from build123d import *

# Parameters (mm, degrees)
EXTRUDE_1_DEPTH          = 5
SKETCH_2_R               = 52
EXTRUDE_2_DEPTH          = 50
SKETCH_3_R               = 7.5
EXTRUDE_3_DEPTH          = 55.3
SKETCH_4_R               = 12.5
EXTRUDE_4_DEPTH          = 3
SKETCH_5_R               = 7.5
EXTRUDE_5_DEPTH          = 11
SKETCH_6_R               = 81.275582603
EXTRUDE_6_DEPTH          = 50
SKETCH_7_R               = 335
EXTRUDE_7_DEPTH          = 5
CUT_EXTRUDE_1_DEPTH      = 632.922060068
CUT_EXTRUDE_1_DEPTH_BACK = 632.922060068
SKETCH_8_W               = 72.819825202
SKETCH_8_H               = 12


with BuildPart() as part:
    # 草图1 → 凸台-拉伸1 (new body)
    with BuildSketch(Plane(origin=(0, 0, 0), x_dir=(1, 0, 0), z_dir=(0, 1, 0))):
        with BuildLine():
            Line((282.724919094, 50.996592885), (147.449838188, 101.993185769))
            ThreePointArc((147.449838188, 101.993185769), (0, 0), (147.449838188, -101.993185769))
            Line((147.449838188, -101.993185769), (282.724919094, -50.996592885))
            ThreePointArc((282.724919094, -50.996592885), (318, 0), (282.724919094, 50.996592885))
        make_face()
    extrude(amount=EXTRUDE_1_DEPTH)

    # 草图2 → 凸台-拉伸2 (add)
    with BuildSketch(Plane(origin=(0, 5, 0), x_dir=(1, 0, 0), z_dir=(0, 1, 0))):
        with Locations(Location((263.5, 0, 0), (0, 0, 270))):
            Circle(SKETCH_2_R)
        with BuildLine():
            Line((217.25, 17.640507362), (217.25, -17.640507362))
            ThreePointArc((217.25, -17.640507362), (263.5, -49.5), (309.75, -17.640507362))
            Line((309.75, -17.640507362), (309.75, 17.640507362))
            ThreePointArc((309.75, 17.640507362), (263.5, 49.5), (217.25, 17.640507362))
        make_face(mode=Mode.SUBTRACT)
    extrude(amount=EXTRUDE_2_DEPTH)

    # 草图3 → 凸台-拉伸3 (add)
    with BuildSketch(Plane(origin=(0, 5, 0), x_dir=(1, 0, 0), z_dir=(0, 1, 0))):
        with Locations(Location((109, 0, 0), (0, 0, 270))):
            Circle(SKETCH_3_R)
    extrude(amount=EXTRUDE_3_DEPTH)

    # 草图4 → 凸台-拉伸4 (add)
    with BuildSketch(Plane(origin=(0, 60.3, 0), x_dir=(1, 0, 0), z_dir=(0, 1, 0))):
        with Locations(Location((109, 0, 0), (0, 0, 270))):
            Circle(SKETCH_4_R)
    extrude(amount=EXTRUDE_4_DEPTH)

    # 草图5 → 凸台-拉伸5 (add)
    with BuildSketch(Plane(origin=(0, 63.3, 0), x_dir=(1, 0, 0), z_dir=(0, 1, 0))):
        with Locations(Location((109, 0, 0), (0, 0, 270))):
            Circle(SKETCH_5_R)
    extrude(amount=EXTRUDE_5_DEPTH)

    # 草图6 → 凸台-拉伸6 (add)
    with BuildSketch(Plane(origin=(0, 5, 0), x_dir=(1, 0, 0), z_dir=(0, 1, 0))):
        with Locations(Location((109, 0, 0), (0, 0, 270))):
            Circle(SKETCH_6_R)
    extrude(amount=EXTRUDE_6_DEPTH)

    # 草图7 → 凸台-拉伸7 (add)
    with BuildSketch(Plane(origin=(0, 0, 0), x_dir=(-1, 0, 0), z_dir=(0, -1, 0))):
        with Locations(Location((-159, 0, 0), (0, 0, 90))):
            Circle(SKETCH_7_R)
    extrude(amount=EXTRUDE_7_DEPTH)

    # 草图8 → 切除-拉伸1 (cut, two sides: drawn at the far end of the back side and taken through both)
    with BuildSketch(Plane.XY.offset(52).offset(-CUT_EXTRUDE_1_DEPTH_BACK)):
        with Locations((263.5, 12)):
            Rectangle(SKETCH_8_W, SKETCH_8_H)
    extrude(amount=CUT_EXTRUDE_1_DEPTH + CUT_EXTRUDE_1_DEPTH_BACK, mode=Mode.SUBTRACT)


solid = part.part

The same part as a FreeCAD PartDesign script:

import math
import FreeCAD as App
import Part
import Sketcher
from FreeCAD import Vector

doc = App.newDocument("Part")
body = doc.addObject("PartDesign::Body", "Body")

# Sketch on XZ plane
sketch1 = body.newObject("Sketcher::SketchObject", "Sketch")
sketch1.AttachmentSupport = (doc.getObject("XZ_Plane"), [""])
sketch1.MapMode = "FlatFace"
sketch1.addGeometry([
    Part.LineSegment(Vector(283, -51, 0), Vector(147, -102, 0)),
    Part.ArcOfCircle(Part.Circle(Vector(109, 0, 0), Vector(0, 0, 1), 109), math.radians(69), math.radians(291)),
    Part.LineSegment(Vector(147, 102, 0), Vector(283, 51, 0)),
    Part.ArcOfCircle(Part.Circle(Vector(263, 0, 0), Vector(0, 0, 1), 55), math.radians(-69), math.radians(69)),
], False)
sketch1.addConstraint([
    Sketcher.Constraint("Tangent", 0, 2, 1, 2),
    Sketcher.Constraint("Tangent", 1, 1, 2, 1),
    Sketcher.Constraint("Tangent", 2, 2, 3, 2),
    Sketcher.Constraint("Tangent", 3, 1, 0, 1),
    Sketcher.Constraint("Symmetric", 0, 2, 1, 1, -1),
    Sketcher.Constraint("Radius", 1, 109.0),
    Sketcher.Constraint("Radius", 3, 54.5),
    Sketcher.Constraint("DistanceX", -1, 1, 1, 3, 109.0),
    Sketcher.Constraint("DistanceX", -1, 1, 3, 3, 263.5),
])
pad1 = body.newObject("PartDesign::Pad", "Pad")
pad1.Profile = sketch1
pad1.Length = 5
pad1.Reversed = True

# Sketch on XZ plane
sketch2 = body.newObject("Sketcher::SketchObject", "Sketch001")
sketch2.AttachmentSupport = (doc.getObject("XZ_Plane"), [""])
sketch2.MapMode = "FlatFace"
sketch2.AttachmentOffset = App.Placement(Vector(0, 0, -5), App.Rotation())
sketch2.addGeometry([
    Part.Circle(Vector(264, 0, 0), Vector(0, 0, 1), 52),  # 0
    Part.LineSegment(Vector(217, 18, 0), Vector(217, -18, 0)),  # 1
    Part.ArcOfCircle(Part.Circle(Vector(264, 0, 0), Vector(0, 0, 1), 50), math.radians(-159), math.radians(-21)),  # 2
    Part.LineSegment(Vector(310, -18, 0), Vector(310, 18, 0)),  # 3
    Part.ArcOfCircle(Part.Circle(Vector(264, 0, 0), Vector(0, 0, 1), 50), math.radians(21), math.radians(159)),  # 4
], False)
sketch2.addConstraint([
    Sketcher.Constraint("Coincident", 1, 2, 2, 1),
    Sketcher.Constraint("Coincident", 2, 2, 3, 1),
    Sketcher.Constraint("Coincident", 3, 2, 4, 1),
    Sketcher.Constraint("Coincident", 4, 2, 1, 1),
    Sketcher.Constraint("Vertical", 1),
    Sketcher.Constraint("Vertical", 3),
    Sketcher.Constraint("Coincident", 2, 3, 0, 3),
    Sketcher.Constraint("Coincident", 4, 3, 0, 3),
    Sketcher.Constraint("Equal", 2, 4),
    Sketcher.Constraint("PointOnObject", 0, 3, -1),
    Sketcher.Constraint("Horizontal", 1, 2, 2, 2),
    Sketcher.Constraint("Diameter", 0, 104.0),
    Sketcher.Constraint("Radius", 2, 49.5),
    Sketcher.Constraint("DistanceX", -1, 1, 0, 3, 263.5),
    Sketcher.Constraint("DistanceX", 1, 2, 2, 2, 92.5),
])
pad2 = body.newObject("PartDesign::Pad", "Pad001")
pad2.Profile = sketch2
pad2.Length = 50
pad2.Reversed = True

# Sketch on XZ plane
sketch3 = body.newObject("Sketcher::SketchObject", "Sketch002")
sketch3.AttachmentSupport = (doc.getObject("XZ_Plane"), [""])
sketch3.MapMode = "FlatFace"
sketch3.AttachmentOffset = App.Placement(Vector(0, 0, -5), App.Rotation())
sketch3.addGeometry(Part.Circle(Vector(109, 0, 0), Vector(0, 0, 1), 8), False)
sketch3.addConstraint([
    Sketcher.Constraint("PointOnObject", 0, 3, -1),
    Sketcher.Constraint("Diameter", 0, 15.0),
    Sketcher.Constraint("DistanceX", -1, 1, 0, 3, 109.0),
])
pad3 = body.newObject("PartDesign::Pad", "Pad002")
pad3.Profile = sketch3
pad3.Length = 55.3
pad3.Reversed = True

# Sketch on XZ plane
sketch4 = body.newObject("Sketcher::SketchObject", "Sketch003")
sketch4.AttachmentSupport = (doc.getObject("XZ_Plane"), [""])
sketch4.MapMode = "FlatFace"
sketch4.AttachmentOffset = App.Placement(Vector(0, 0, -60.3), App.Rotation())
sketch4.addGeometry(Part.Circle(Vector(109, 0, 0), Vector(0, 0, 1), 12), False)
sketch4.addConstraint([
    Sketcher.Constraint("PointOnObject", 0, 3, -1),
    Sketcher.Constraint("Diameter", 0, 25.0),
    Sketcher.Constraint("DistanceX", -1, 1, 0, 3, 109.0),
])
pad4 = body.newObject("PartDesign::Pad", "Pad003")
pad4.Profile = sketch4
pad4.Length = 3
pad4.Reversed = True

# Sketch on XZ plane
sketch5 = body.newObject("Sketcher::SketchObject", "Sketch004")
sketch5.AttachmentSupport = (doc.getObject("XZ_Plane"), [""])
sketch5.MapMode = "FlatFace"
sketch5.AttachmentOffset = App.Placement(Vector(0, 0, -63.3), App.Rotation())
sketch5.addGeometry(Part.Circle(Vector(109, 0, 0), Vector(0, 0, 1), 8), False)
sketch5.addConstraint([
    Sketcher.Constraint("PointOnObject", 0, 3, -1),
    Sketcher.Constraint("Diameter", 0, 15.0),
    Sketcher.Constraint("DistanceX", -1, 1, 0, 3, 109.0),
])
pad5 = body.newObject("PartDesign::Pad", "Pad004")
pad5.Profile = sketch5
pad5.Length = 11
pad5.Reversed = True

# Sketch on XZ plane
sketch6 = body.newObject("Sketcher::SketchObject", "Sketch005")
sketch6.AttachmentSupport = (doc.getObject("XZ_Plane"), [""])
sketch6.MapMode = "FlatFace"
sketch6.AttachmentOffset = App.Placement(Vector(0, 0, -5), App.Rotation())
sketch6.addGeometry(Part.Circle(Vector(109, 0, 0), Vector(0, 0, 1), 81), False)
sketch6.addConstraint([
    Sketcher.Constraint("PointOnObject", 0, 3, -1),
    Sketcher.Constraint("DistanceX", -1, 1, 0, 3, 109.0),
    Sketcher.Constraint("Diameter", 0, 162.551165),
])
pad6 = body.newObject("PartDesign::Pad", "Pad005")
pad6.Profile = sketch6
pad6.Length = 50
pad6.Reversed = True

# Sketch on XZ plane
sketch7 = body.newObject("Sketcher::SketchObject", "Sketch006")
sketch7.AttachmentSupport = (doc.getObject("XZ_Plane"), [""])
sketch7.MapMode = "FlatFace"
sketch7.addGeometry(Part.Circle(Vector(159, 0, 0), Vector(0, 0, 1), 335), False)
sketch7.addConstraint([
    Sketcher.Constraint("PointOnObject", 0, 3, -1),
    Sketcher.Constraint("Diameter", 0, 670.0),
    Sketcher.Constraint("DistanceX", -1, 1, 0, 3, 159.0),
])
pad7 = body.newObject("PartDesign::Pad", "Pad006")
pad7.Profile = sketch7
pad7.Length = 5

# Sketch on XY plane
sketch8 = body.newObject("Sketcher::SketchObject", "Sketch007")
sketch8.AttachmentSupport = (doc.getObject("XY_Plane"), [""])
sketch8.MapMode = "FlatFace"
sketch8.AttachmentOffset = App.Placement(Vector(0, 0, 52), App.Rotation())
sketch8.addGeometry([
    Part.LineSegment(Vector(227, 18, 0), Vector(227, 6, 0)),
    Part.LineSegment(Vector(227, 6, 0), Vector(300, 6, 0)),
    Part.LineSegment(Vector(300, 6, 0), Vector(300, 18, 0)),
    Part.LineSegment(Vector(300, 18, 0), Vector(227, 18, 0)),
], False)
sketch8.addConstraint([
    Sketcher.Constraint("Coincident", 0, 2, 1, 1),
    Sketcher.Constraint("Coincident", 1, 2, 2, 1),
    Sketcher.Constraint("Coincident", 2, 2, 3, 1),
    Sketcher.Constraint("Coincident", 3, 2, 0, 1),
    Sketcher.Constraint("Vertical", 0),
    Sketcher.Constraint("Horizontal", 1),
    Sketcher.Constraint("Vertical", 2),
    Sketcher.Constraint("Horizontal", 3),
    Sketcher.Constraint("DistanceY", 0, 2, 0, 1, 12.0),
    Sketcher.Constraint("DistanceY", -1, 1, 0, 2, 6.0),
    Sketcher.Constraint("DistanceX", 1, 1, 1, 2, 72.819825),
    Sketcher.Constraint("DistanceX", -1, 1, 0, 2, 227.090087),
])
pocket1 = body.newObject("PartDesign::Pocket", "Pocket")
pocket1.Profile = sketch8
pocket1.Type = "ThroughAll"
pocket1.Midplane = True

doc.recompute()
